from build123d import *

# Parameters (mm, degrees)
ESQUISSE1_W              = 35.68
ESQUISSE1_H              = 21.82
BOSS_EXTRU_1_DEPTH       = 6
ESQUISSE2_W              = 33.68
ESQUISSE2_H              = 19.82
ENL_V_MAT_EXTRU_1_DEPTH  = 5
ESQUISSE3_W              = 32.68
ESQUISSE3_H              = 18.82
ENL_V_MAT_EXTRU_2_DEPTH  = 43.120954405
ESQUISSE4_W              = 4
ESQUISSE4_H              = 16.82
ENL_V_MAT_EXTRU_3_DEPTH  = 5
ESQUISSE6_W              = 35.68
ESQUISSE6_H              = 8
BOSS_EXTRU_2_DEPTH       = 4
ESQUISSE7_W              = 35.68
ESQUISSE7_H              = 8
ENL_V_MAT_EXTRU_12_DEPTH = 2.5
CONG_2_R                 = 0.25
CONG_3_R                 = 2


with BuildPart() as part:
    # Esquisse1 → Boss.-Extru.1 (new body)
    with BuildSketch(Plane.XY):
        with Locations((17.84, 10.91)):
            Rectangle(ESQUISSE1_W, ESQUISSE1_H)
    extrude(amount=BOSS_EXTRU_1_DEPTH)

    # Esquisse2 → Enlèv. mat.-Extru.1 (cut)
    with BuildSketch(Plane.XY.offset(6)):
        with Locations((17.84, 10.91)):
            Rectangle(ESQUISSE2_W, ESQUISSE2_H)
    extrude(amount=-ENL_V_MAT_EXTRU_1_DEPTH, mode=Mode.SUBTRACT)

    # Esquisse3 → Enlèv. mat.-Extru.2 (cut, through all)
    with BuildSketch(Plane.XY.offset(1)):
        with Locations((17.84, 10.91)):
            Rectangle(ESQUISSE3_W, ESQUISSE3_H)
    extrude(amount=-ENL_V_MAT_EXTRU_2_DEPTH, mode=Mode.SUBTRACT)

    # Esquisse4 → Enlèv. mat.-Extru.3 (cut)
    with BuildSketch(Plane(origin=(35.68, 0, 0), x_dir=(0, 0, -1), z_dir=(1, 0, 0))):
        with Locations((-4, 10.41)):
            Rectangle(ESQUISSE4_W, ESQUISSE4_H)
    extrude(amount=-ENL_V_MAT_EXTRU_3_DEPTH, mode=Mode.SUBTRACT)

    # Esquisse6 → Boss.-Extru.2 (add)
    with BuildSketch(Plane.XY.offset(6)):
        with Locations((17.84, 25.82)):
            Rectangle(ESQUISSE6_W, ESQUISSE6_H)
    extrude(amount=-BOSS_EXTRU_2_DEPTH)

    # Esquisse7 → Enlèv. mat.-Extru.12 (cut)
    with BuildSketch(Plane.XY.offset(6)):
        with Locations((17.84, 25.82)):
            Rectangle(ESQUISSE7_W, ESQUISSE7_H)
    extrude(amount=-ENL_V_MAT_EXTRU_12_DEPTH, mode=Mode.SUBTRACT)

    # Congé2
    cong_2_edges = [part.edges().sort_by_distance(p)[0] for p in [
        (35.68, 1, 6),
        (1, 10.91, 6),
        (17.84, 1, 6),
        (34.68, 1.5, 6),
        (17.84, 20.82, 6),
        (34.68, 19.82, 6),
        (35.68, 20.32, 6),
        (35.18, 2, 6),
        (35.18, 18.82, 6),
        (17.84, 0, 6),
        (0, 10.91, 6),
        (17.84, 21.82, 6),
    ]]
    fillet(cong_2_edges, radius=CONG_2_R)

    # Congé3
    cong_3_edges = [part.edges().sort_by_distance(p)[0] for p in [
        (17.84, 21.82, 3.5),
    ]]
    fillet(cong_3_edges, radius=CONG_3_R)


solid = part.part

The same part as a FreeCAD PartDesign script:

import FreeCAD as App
import Part
import Sketcher
from FreeCAD import Vector
Q = App.Units.Quantity


def edges_at(feature, points):
    """Names of the edges that pass closest to the given points."""
    edges = feature.Shape.Edges
    near = lambda p: min(range(len(edges)), key=lambda i: edges[i].distToShape(Part.Vertex(*p))[0])
    return sorted({f"Edge{near(p) + 1}" for p in points})


def add_polygon(sketch, points):
    """Adds a closed chain of lines whose ends are joined by coincident constraints."""
    first, n = sketch.GeometryCount, len(points)
    for a, b in zip(points, points[1:] + points[:1]):
        sketch.addGeometry(Part.LineSegment(App.Vector(*a, 0), App.Vector(*b, 0)), False)
    for i in range(n):
        sketch.addConstraint(Sketcher.Constraint("Coincident", first + i, 2, first + (i + 1) % n, 1))

doc = App.newDocument("Part")
body = doc.addObject("PartDesign::Body", "Body")

sketch1 = body.newObject("Sketcher::SketchObject", "Sketch")
sketch1.AttachmentSupport = (doc.getObject("XY_Plane"), [""])
sketch1.MapMode = "FlatFace"
add_polygon(sketch1, [(0, 22), (0, 0), (36, 0), (36, 22)])
sketch1.addConstraint([
    Sketcher.Constraint("Vertical", 0),
    Sketcher.Constraint("Horizontal", 1),
    Sketcher.Constraint("Vertical", 2),
    Sketcher.Constraint("Horizontal", 3),
    Sketcher.Constraint("Coincident", 0, 2, -1, 1),
    Sketcher.Constraint("DistanceX", 1, 1, 1, 2, Q("35.68 mm")),
    Sketcher.Constraint("DistanceY", 0, 2, 0, 1, Q("21.82 mm")),
])
pad1 = body.newObject("PartDesign::Pad", "Pad")
pad1.Profile = sketch1
pad1.Length = 6

sketch2 = body.newObject("Sketcher::SketchObject", "Sketch001")
sketch2.AttachmentSupport = (doc.getObject("XY_Plane"), [""])
sketch2.MapMode = "FlatFace"
sketch2.AttachmentOffset = App.Placement(Vector(0, 0, 6), App.Rotation())
add_polygon(sketch2, [(1, 21), (1, 1), (35, 1), (35, 21)])
sketch2.addConstraint([
    Sketcher.Constraint("Vertical", 0),
    Sketcher.Constraint("Horizontal", 1),
    Sketcher.Constraint("Vertical", 2),
    Sketcher.Constraint("Horizontal", 3),
    Sketcher.Constraint("DistanceX", -1, 1, 0, 2, Q("1 mm")),
    Sketcher.Constraint("DistanceY", -1, 1, 0, 2, Q("1 mm")),
    Sketcher.Constraint("DistanceX", 1, 1, 1, 2, Q("33.68 mm")),
    Sketcher.Constraint("DistanceY", 0, 2, 0, 1, Q("19.82 mm")),
])
pocket1 = body.newObject("PartDesign::Pocket", "Pocket")
pocket1.Profile = sketch2
pocket1.Length = 5

sketch3 = body.newObject("Sketcher::SketchObject", "Sketch002")
sketch3.AttachmentSupport = (doc.getObject("XY_Plane"), [""])
sketch3.MapMode = "FlatFace"
sketch3.AttachmentOffset = App.Placement(Vector(0, 0, 1), App.Rotation())
add_polygon(sketch3, [(2, 20), (2, 2), (34, 2), (34, 20)])
sketch3.addConstraint([
    Sketcher.Constraint("Vertical", 0),
    Sketcher.Constraint("Horizontal", 1),
    Sketcher.Constraint("Vertical", 2),
    Sketcher.Constraint("Horizontal", 3),
    Sketcher.Constraint("DistanceX", 1, 1, 1, 2, Q("32.68 mm")),
    Sketcher.Constraint("DistanceY", 0, 2, 0, 1, Q("18.82 mm")),
    Sketcher.Constraint("DistanceX", -1, 1, 0, 2, Q("1.5 mm")),
    Sketcher.Constraint("DistanceY", -1, 1, 0, 2, Q("1.5 mm")),
])
pocket2 = body.newObject("PartDesign::Pocket", "Pocket001")
pocket2.Profile = sketch3
pocket2.Type = "ThroughAll"

sketch4 = body.newObject("Sketcher::SketchObject", "Sketch003")
sketch4.AttachmentSupport = (doc.getObject("YZ_Plane"), [""])
sketch4.MapMode = "FlatFace"
sketch4.AttachmentOffset = App.Placement(Vector(0, 0, 35.68), App.Rotation())
add_polygon(sketch4, [(18.8, 6), (2, 6), (2, 2), (18.8, 2)])
sketch4.addConstraint([
    Sketcher.Constraint("Horizontal", 0),
    Sketcher.Constraint("Vertical", 1),
    Sketcher.Constraint("Horizontal", 2),
    Sketcher.Constraint("Vertical", 3),
    Sketcher.Constraint("DistanceY", 1, 2, 1, 1, Q("4 mm")),
    Sketcher.Constraint("DistanceX", -1, 1, 0, 2, Q("2 mm")),
    Sketcher.Constraint("DistanceY", -1, 1, 0, 2, Q("6 mm")),
    Sketcher.Constraint("DistanceX", 0, 2, 0, 1, Q("16.82 mm")),
])
pocket3 = body.newObject("PartDesign::Pocket", "Pocket002")
pocket3.Profile = sketch4
pocket3.Length = 5

sketch5 = body.newObject("Sketcher::SketchObject", "Sketch004")
sketch5.AttachmentSupport = (doc.getObject("XY_Plane"), [""])
sketch5.MapMode = "FlatFace"
sketch5.AttachmentOffset = App.Placement(Vector(0, 0, 6), App.Rotation())
add_polygon(sketch5, [(0, 30), (0, 22), (36, 22), (36, 30)])
sketch5.addConstraint([
    Sketcher.Constraint("Vertical", 0),
    Sketcher.Constraint("Horizontal", 1),
    Sketcher.Constraint("Vertical", 2),
    Sketcher.Constraint("Horizontal", 3),
    Sketcher.Constraint("PointOnObject", 0, 2, -2),
    Sketcher.Constraint("DistanceY", 0, 2, 0, 1, Q("8 mm")),
    Sketcher.Constraint("DistanceX", 1, 1, 1, 2, Q("35.68 mm")),
    Sketcher.Constraint("DistanceY", -1, 1, 0, 2, Q("21.82 mm")),
])
pad2 = body.newObject("PartDesign::Pad", "Pad001")
pad2.Profile = sketch5
pad2.Length = 4
pad2.Reversed = True

sketch6 = body.newObject("Sketcher::SketchObject", "Sketch005")
sketch6.AttachmentSupport = (doc.getObject("XY_Plane"), [""])
sketch6.MapMode = "FlatFace"
sketch6.AttachmentOffset = App.Placement(Vector(0, 0, 6), App.Rotation())
add_polygon(sketch6, [(0, 30), (0, 22), (36, 22), (36, 30)])
sketch6.addConstraint([
    Sketcher.Constraint("Vertical", 0),
    Sketcher.Constraint("Horizontal", 1),
    Sketcher.Constraint("Vertical", 2),
    Sketcher.Constraint("Horizontal", 3),
    Sketcher.Constraint("PointOnObject", 0, 2, -2),
    Sketcher.Constraint("DistanceY", 0, 2, 0, 1, Q("8 mm")),
    Sketcher.Constraint("DistanceX", 1, 1, 1, 2, Q("35.68 mm")),
    Sketcher.Constraint("DistanceY", -1, 1, 0, 2, Q("21.82 mm")),
])
pocket4 = body.newObject("PartDesign::Pocket", "Pocket003")
pocket4.Profile = sketch6
pocket4.Length = 2.5
doc.recompute()

fillet = body.newObject("PartDesign::Fillet", "Fillet")
fillet.Base = (pocket4, edges_at(pocket4, [
    (35.68, 1, 6),
    (1, 10.91, 6),
    (17.84, 1, 6),
    (34.68, 1.5, 6),
    (17.84, 20.82, 6),
    (34.68, 19.82, 6),
    (35.68, 20.32, 6),
    (35.18, 2, 6),
    (35.18, 18.82, 6),
    (17.84, 0, 6),
    (0, 10.91, 6),
    (17.84, 21.82, 6),
]))
fillet.Radius = 0.25
doc.recompute()

fillet2 = body.newObject("PartDesign::Fillet", "Fillet001")
fillet2.Base = (fillet, edges_at(fillet, [(17.84, 21.82, 3.5)]))
fillet2.Radius = 2

doc.recompute()
